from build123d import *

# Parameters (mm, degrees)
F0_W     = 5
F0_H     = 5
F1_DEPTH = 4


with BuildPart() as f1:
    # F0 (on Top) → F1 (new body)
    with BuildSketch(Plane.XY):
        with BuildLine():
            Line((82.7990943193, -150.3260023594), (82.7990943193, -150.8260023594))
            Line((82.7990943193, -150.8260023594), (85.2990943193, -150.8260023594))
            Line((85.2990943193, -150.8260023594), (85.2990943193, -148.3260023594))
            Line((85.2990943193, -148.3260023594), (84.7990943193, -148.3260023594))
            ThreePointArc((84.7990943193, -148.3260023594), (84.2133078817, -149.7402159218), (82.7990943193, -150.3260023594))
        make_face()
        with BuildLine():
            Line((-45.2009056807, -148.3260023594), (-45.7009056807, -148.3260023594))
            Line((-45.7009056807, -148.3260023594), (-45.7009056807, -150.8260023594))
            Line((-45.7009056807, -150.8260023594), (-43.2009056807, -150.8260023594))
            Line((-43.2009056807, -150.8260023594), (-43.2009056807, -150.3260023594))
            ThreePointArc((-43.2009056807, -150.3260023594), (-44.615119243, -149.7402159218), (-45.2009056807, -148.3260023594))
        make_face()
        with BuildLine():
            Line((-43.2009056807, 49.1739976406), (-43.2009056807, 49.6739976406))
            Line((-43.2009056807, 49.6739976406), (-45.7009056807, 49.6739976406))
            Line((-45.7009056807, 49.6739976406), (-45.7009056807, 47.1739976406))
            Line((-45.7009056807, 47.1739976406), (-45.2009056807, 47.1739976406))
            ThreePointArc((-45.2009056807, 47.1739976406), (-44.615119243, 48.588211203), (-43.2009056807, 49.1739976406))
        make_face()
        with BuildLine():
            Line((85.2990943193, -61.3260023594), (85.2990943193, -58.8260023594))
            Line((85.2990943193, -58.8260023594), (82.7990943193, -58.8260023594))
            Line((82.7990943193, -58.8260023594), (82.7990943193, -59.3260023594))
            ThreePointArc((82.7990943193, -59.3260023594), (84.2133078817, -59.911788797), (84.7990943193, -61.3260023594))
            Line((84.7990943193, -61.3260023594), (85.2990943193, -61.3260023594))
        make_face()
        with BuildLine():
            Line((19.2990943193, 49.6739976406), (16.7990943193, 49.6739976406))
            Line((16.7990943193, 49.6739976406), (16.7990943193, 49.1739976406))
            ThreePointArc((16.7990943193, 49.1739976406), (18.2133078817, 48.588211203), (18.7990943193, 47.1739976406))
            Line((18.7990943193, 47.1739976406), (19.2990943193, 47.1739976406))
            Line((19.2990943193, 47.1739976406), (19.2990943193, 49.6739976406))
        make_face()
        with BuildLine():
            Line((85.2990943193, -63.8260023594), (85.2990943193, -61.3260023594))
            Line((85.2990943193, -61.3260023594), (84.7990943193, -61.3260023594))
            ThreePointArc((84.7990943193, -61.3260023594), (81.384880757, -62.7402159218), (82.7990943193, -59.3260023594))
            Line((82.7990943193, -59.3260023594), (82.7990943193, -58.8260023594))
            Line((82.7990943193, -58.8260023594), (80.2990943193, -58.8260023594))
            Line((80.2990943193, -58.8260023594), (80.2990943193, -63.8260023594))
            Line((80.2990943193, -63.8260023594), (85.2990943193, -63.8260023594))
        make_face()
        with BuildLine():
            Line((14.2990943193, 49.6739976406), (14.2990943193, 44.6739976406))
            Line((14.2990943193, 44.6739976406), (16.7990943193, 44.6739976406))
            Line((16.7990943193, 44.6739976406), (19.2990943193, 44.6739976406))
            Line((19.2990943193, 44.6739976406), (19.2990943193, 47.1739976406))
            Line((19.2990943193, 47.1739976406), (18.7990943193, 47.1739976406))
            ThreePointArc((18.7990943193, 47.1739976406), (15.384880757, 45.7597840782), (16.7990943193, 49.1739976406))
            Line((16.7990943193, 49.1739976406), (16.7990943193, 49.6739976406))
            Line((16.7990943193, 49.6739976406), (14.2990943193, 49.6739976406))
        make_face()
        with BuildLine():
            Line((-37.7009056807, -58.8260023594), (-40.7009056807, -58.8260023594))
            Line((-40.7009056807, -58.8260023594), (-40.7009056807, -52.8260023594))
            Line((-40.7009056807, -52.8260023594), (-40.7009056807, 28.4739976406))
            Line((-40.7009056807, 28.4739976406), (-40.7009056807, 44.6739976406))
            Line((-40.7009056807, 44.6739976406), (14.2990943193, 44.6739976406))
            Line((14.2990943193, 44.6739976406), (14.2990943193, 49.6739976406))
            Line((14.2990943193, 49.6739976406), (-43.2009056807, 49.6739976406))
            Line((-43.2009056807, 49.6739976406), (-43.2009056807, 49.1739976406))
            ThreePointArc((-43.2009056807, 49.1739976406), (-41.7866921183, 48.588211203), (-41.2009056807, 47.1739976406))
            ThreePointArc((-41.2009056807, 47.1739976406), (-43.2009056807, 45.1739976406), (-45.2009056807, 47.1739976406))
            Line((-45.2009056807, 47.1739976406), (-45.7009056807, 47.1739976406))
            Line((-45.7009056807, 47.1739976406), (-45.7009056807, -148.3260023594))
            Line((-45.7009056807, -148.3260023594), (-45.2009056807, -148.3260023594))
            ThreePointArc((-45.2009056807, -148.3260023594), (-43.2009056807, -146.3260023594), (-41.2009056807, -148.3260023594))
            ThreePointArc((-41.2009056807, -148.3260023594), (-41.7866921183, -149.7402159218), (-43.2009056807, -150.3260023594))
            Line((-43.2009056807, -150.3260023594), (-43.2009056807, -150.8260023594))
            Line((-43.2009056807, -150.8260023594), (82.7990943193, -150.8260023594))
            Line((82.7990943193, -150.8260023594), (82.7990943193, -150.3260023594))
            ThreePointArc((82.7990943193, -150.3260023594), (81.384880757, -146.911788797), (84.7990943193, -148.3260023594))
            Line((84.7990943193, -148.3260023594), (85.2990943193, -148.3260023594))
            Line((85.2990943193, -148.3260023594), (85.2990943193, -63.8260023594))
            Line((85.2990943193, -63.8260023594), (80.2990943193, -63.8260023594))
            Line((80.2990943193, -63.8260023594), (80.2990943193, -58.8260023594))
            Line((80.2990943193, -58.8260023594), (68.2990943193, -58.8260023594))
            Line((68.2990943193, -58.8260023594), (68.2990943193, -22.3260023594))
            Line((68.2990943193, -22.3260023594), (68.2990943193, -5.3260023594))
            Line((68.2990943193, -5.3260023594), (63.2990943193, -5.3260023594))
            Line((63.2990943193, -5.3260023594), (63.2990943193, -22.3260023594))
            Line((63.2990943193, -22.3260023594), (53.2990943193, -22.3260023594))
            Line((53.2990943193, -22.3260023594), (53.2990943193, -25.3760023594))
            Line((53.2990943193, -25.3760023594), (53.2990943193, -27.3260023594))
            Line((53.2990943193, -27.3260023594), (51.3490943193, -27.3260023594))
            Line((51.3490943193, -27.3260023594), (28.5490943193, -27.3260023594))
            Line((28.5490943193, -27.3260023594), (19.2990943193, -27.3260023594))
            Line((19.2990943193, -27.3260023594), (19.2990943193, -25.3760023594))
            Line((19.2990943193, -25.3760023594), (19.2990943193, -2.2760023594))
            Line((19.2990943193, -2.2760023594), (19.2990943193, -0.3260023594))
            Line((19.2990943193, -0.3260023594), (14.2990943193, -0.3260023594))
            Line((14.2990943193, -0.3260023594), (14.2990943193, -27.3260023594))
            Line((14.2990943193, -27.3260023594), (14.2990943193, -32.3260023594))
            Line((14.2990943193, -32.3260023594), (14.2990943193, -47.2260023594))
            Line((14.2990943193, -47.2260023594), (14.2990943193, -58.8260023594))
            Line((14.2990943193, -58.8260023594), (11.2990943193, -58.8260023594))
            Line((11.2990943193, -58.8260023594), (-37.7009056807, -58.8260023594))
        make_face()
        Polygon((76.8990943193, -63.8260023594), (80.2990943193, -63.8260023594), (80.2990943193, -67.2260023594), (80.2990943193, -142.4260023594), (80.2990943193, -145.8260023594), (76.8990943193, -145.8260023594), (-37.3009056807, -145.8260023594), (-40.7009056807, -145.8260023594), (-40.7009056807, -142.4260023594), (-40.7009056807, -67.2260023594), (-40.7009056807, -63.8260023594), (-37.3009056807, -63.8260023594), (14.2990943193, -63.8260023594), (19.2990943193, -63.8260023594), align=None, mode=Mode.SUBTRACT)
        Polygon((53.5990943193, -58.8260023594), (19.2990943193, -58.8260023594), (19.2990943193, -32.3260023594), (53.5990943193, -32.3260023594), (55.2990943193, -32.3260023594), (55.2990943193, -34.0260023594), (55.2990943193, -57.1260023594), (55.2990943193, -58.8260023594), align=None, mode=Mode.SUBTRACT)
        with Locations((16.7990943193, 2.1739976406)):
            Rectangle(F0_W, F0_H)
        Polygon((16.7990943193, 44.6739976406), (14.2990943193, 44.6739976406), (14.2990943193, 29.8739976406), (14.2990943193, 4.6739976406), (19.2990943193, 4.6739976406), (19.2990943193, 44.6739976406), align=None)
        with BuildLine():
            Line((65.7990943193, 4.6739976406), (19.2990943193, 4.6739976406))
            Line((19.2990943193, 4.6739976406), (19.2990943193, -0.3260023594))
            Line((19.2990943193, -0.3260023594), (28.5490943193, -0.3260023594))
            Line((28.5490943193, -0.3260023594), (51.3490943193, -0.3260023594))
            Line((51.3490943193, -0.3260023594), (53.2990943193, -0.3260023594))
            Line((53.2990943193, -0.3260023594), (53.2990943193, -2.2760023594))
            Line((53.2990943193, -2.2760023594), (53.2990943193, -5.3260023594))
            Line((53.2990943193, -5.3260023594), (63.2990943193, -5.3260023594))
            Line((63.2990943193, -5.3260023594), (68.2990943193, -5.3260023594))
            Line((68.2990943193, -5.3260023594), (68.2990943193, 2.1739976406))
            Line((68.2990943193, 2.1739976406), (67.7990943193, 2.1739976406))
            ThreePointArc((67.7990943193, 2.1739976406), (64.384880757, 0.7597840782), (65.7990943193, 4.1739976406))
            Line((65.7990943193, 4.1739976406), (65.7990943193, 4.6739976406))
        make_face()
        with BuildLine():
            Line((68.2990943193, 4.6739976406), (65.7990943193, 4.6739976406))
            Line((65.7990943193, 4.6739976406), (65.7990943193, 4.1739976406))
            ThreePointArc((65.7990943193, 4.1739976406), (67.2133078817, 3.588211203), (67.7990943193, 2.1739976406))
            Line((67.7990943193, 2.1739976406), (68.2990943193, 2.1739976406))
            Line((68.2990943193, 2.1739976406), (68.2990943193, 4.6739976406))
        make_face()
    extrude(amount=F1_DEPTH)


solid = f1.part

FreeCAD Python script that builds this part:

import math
import FreeCAD as App
import Part
import Sketcher
from FreeCAD import Vector

doc = App.newDocument("Part")
body = doc.addObject("PartDesign::Body", "Body")

# Sketch on XY plane
sketch1 = body.newObject("Sketcher::SketchObject", "Sketch")
sketch1.AttachmentSupport = (doc.getObject("XY_Plane"), [""])
sketch1.MapMode = "FlatFace"
sketch1.addGeometry([
    Part.LineSegment(Vector(85.3, -150.8, 0), Vector(85.3, -58.8, 0)),  # 0
    Part.LineSegment(Vector(85.3, -58.8, 0), Vector(68.3, -58.8, 0)),  # 1
    Part.LineSegment(Vector(68.3, -58.8, 0), Vector(68.3, 4.7, 0)),  # 2
    Part.LineSegment(Vector(68.3, 4.7, 0), Vector(19.3, 4.7, 0)),  # 3
    Part.LineSegment(Vector(19.3, 4.7, 0), Vector(19.3, 49.7, 0)),  # 4
    Part.LineSegment(Vector(19.3, 49.7, 0), Vector(-45.7, 49.7, 0)),  # 5
    Part.LineSegment(Vector(-45.7, 49.7, 0), Vector(-45.7, -150.8, 0)),  # 6
    Part.LineSegment(Vector(-45.7, -150.8, 0), Vector(85.3, -150.8, 0)),  # 7
    Part.ArcOfCircle(Part.Circle(Vector(65.8, 2.2, 0), Vector(0, 0, 1), 2), math.radians(90), math.radians(360)),  # 8
    Part.ArcOfCircle(Part.Circle(Vector(65.8, 2.2, 0), Vector(0, 0, 1), 2), math.radians(0), math.radians(90)),  # 9
    Part.LineSegment(Vector(63.3, -5.3, 0), Vector(63.3, -22.3, 0)),  # 10
    Part.LineSegment(Vector(63.3, -22.3, 0), Vector(53.3, -22.3, 0)),  # 11
    Part.LineSegment(Vector(53.3, -22.3, 0), Vector(53.3, -27.3, 0)),  # 12
    Part.LineSegment(Vector(53.3, -27.3, 0), Vector(19.3, -27.3, 0)),  # 13
    Part.LineSegment(Vector(19.3, -27.3, 0), Vector(19.3, -0.3, 0)),  # 14
    Part.LineSegment(Vector(19.3, -0.3, 0), Vector(53.3, -0.3, 0)),  # 15
    Part.LineSegment(Vector(53.3, -0.3, 0), Vector(53.3, -5.3, 0)),  # 16
    Part.LineSegment(Vector(53.3, -5.3, 0), Vector(63.3, -5.3, 0)),  # 17
    Part.LineSegment(Vector(14.3, -58.8, 0), Vector(-40.7, -58.8, 0)),  # 18
    Part.LineSegment(Vector(-40.7, -58.8, 0), Vector(-40.7, 44.7, 0)),  # 19
    Part.LineSegment(Vector(-40.7, 44.7, 0), Vector(14.3, 44.7, 0)),  # 20
    Part.LineSegment(Vector(14.3, 44.7, 0), Vector(14.3, -58.8, 0)),  # 21
    Part.ArcOfCircle(Part.Circle(Vector(-43.2, -148.3, 0), Vector(0, 0, 1), 2), math.radians(0), math.radians(180)),  # 22
    Part.ArcOfCircle(Part.Circle(Vector(-43.2, -148.3, 0), Vector(0, 0, 1), 2), math.radians(-90), math.radians(0)),  # 23
    Part.ArcOfCircle(Part.Circle(Vector(-43.2, -148.3, 0), Vector(0, 0, 1), 2), math.radians(180), math.radians(270)),  # 24
    Part.LineSegment(Vector(-40.7, -63.8, 0), Vector(80.3, -63.8, 0)),  # 25
    Part.LineSegment(Vector(80.3, -63.8, 0), Vector(80.3, -145.8, 0)),  # 26
    Part.LineSegment(Vector(80.3, -145.8, 0), Vector(-40.7, -145.8, 0)),  # 27
    Part.LineSegment(Vector(-40.7, -145.8, 0), Vector(-40.7, -63.8, 0)),  # 28
    Part.ArcOfCircle(Part.Circle(Vector(82.8, -148.3, 0), Vector(0, 0, 1), 2), math.radians(-90), math.radians(0)),  # 29
    Part.ArcOfCircle(Part.Circle(Vector(82.8, -148.3, 0), Vector(0, 0, 1), 2), math.radians(0), math.radians(270)),  # 30
    Part.ArcOfCircle(Part.Circle(Vector(82.8, -61.3, 0), Vector(0, 0, 1), 2), math.radians(0), math.radians(90)),  # 31
    Part.ArcOfCircle(Part.Circle(Vector(82.8, -61.3, 0), Vector(0, 0, 1), 2), math.radians(90), math.radians(360)),  # 32
    Part.ArcOfCircle(Part.Circle(Vector(-43.2, 47.2, 0), Vector(0, 0, 1), 2), math.radians(0), math.radians(90)),  # 33
    Part.ArcOfCircle(Part.Circle(Vector(-43.2, 47.2, 0), Vector(0, 0, 1), 2), math.radians(180), math.radians(360)),  # 34
    Part.ArcOfCircle(Part.Circle(Vector(-43.2, 47.2, 0), Vector(0, 0, 1), 2), math.radians(90), math.radians(180)),  # 35
    Part.ArcOfCircle(Part.Circle(Vector(16.8, 47.2, 0), Vector(0, 0, 1), 2), math.radians(90), math.radians(360)),  # 36
    Part.ArcOfCircle(Part.Circle(Vector(16.8, 47.2, 0), Vector(0, 0, 1), 2), math.radians(0), math.radians(90)),  # 37
    Part.LineSegment(Vector(55.3, -58.8, 0), Vector(19.3, -58.8, 0)),  # 38
    Part.LineSegment(Vector(19.3, -58.8, 0), Vector(19.3, -32.3, 0)),  # 39
    Part.LineSegment(Vector(19.3, -32.3, 0), Vector(55.3, -32.3, 0)),  # 40
    Part.LineSegment(Vector(55.3, -32.3, 0), Vector(55.3, -58.8, 0)),  # 41
], False)
sketch1.addConstraint([
    Sketcher.Constraint("Coincident", 0, 2, 1, 1),
    Sketcher.Constraint("Coincident", 1, 2, 2, 1),
    Sketcher.Constraint("Coincident", 2, 2, 3, 1),
    Sketcher.Constraint("Coincident", 3, 2, 4, 1),
    Sketcher.Constraint("Coincident", 4, 2, 5, 1),
    Sketcher.Constraint("Coincident", 5, 2, 6, 1),
    Sketcher.Constraint("Coincident", 6, 2, 7, 1),
    Sketcher.Constraint("Coincident", 7, 2, 0, 1),
    Sketcher.Constraint("Tangent", 8, 1, 9, 2),
    Sketcher.Constraint("Coincident", 9, 1, 8, 2),
    Sketcher.Constraint("Coincident", 10, 2, 11, 1),
    Sketcher.Constraint("Coincident", 11, 2, 12, 1),
    Sketcher.Constraint("Coincident", 12, 2, 13, 1),
    Sketcher.Constraint("Coincident", 13, 2, 14, 1),
    Sketcher.Constraint("Coincident", 14, 2, 15, 1),
    Sketcher.Constraint("Coincident", 15, 2, 16, 1),
    Sketcher.Constraint("Coincident", 16, 2, 17, 1),
    Sketcher.Constraint("Coincident", 17, 2, 10, 1),
    Sketcher.Constraint("Coincident", 18, 2, 19, 1),
    Sketcher.Constraint("Coincident", 19, 2, 20, 1),
    Sketcher.Constraint("Coincident", 20, 2, 21, 1),
    Sketcher.Constraint("Coincident", 21, 2, 18, 1),
    Sketcher.Constraint("Tangent", 22, 1, 23, 2),
    Sketcher.Constraint("Tangent", 23, 1, 24, 2),
    Sketcher.Constraint("Tangent", 24, 1, 22, 2),
    Sketcher.Constraint("Coincident", 25, 2, 26, 1),
    Sketcher.Constraint("Coincident", 26, 2, 27, 1),
    Sketcher.Constraint("Coincident", 27, 2, 28, 1),
    Sketcher.Constraint("Coincident", 28, 2, 25, 1),
    Sketcher.Constraint("Tangent", 29, 1, 30, 2),
    Sketcher.Constraint("Coincident", 30, 1, 29, 2),
    Sketcher.Constraint("Tangent", 31, 1, 32, 2),
    Sketcher.Constraint("Coincident", 32, 1, 31, 2),
    Sketcher.Constraint("Tangent", 33, 1, 34, 2),
    Sketcher.Constraint("Tangent", 34, 1, 35, 2),
    Sketcher.Constraint("Tangent", 35, 1, 33, 2),
    Sketcher.Constraint("Tangent", 36, 1, 37, 2),
    Sketcher.Constraint("Coincident", 37, 1, 36, 2),
    Sketcher.Constraint("Coincident", 38, 2, 39, 1),
    Sketcher.Constraint("Coincident", 39, 2, 40, 1),
    Sketcher.Constraint("Coincident", 40, 2, 41, 1),
    Sketcher.Constraint("Coincident", 41, 2, 38, 1),
    Sketcher.Constraint("Vertical", 0),
    Sketcher.Constraint("Horizontal", 1),
    Sketcher.Constraint("Vertical", 2),
    Sketcher.Constraint("Horizontal", 3),
    Sketcher.Constraint("Vertical", 4),
    Sketcher.Constraint("Horizontal", 5),
    Sketcher.Constraint("Vertical", 6),
    Sketcher.Constraint("Horizontal", 7),
    Sketcher.Constraint("Vertical", 10),
    Sketcher.Constraint("Horizontal", 11),
    Sketcher.Constraint("Vertical", 12),
    Sketcher.Constraint("Horizontal", 13),
    Sketcher.Constraint("Vertical", 14),
    Sketcher.Constraint("Horizontal", 15),
    Sketcher.Constraint("Vertical", 16),
    Sketcher.Constraint("Horizontal", 17),
    Sketcher.Constraint("Horizontal", 18),
    Sketcher.Constraint("Vertical", 19),
    Sketcher.Constraint("Horizontal", 20),
    Sketcher.Constraint("Vertical", 21),
    Sketcher.Constraint("Horizontal", 25),
    Sketcher.Constraint("Vertical", 26),
    Sketcher.Constraint("Horizontal", 27),
    Sketcher.Constraint("Vertical", 28),
    Sketcher.Constraint("Horizontal", 38),
    Sketcher.Constraint("Vertical", 39),
    Sketcher.Constraint("Horizontal", 40),
    Sketcher.Constraint("Vertical", 41),
    Sketcher.Constraint("Equal", 9, 22),
    Sketcher.Constraint("Equal", 24, 29),
    Sketcher.Constraint("Equal", 30, 31),
    Sketcher.Constraint("Equal", 32, 33),
    Sketcher.Constraint("Equal", 35, 36),
    Sketcher.Constraint("Horizontal", 24, 3, 29, 3),
    Sketcher.Constraint("Horizontal", 35, 3, 36, 3),
    Sketcher.Constraint("Horizontal", 8, 3, 9, 1),
    Sketcher.Constraint("Horizontal", 1, 2, 18, 2),
    Sketcher.Constraint("Horizontal", 30, 3, 22, 1),
    Sketcher.Constraint("Horizontal", 22, 1, 24, 1),
    Sketcher.Constraint("Horizontal", 24, 1, 30, 1),
    Sketcher.Constraint("Horizontal", 32, 3, 31, 1),
    Sketcher.Constraint("Horizontal", 37, 3, 33, 1),
    Sketcher.Constraint("Horizontal", 33, 1, 34, 1),
    Sketcher.Constraint("Horizontal", 34, 1, 37, 1),
    Sketcher.Constraint("Horizontal", 21, 2, 38, 2),
    Sketcher.Constraint("Vertical", 30, 3, 31, 3),
    Sketcher.Constraint("Vertical", 24, 3, 33, 3),
    Sketcher.Constraint("Vertical", 9, 3, 8, 1),
    Sketcher.Constraint("Vertical", 4, 2, 13, 2),
    Sketcher.Constraint("Vertical", 12, 2, 15, 2),
    Sketcher.Constraint("Vertical", 35, 3, 23, 1),
    Sketcher.Constraint("Vertical", 19, 2, 27, 2),
    Sketcher.Constraint("Vertical", 32, 3, 29, 1),
    Sketcher.Constraint("Vertical", 29, 1, 32, 1),
    Sketcher.Constraint("Vertical", 23, 1, 35, 1),
    Sketcher.Constraint("Vertical", 37, 3, 36, 1),
    Sketcher.Constraint("Vertical", 14, 2, 38, 2),
    Sketcher.Constraint("Equal", 1, 10),
    Sketcher.Constraint("Equal", 12, 16),
    Sketcher.Constraint("Radius", 8, 2.0),
    Sketcher.Constraint("DistanceX", 1, 2, 1, 1, 17.0),
    Sketcher.Constraint("DistanceX", 3, 2, 3, 1, 49.0),
    Sketcher.Constraint("DistanceX", 5, 2, 5, 1, 65.0),
    Sketcher.Constraint("DistanceX", 11, 2, 11, 1, 10.0),
    Sketcher.Constraint("DistanceX", 13, 2, 13, 1, 34.0),
    Sketcher.Constraint("DistanceX", 18, 2, 18, 1, 55.0),
    Sketcher.Constraint("DistanceX", 25, 1, 25, 2, 121.0),
    Sketcher.Constraint("DistanceX", 38, 2, 38, 1, 36.0),
    Sketcher.Constraint("DistanceY", 0, 1, 0, 2, 92.0),
    Sketcher.Constraint("DistanceY", 4, 1, 4, 2, 45.0),
    Sketcher.Constraint("DistanceY", 12, 2, 12, 1, 5.0),
    Sketcher.Constraint("DistanceY", 26, 2, 26, 1, 82.0),
    Sketcher.Constraint("DistanceY", 2, 1, 2, 2, 63.5),
    Sketcher.Constraint("DistanceY", 19, 1, 19, 2, 103.5),
    Sketcher.Constraint("DistanceY", 39, 1, 39, 2, 26.5),
    Sketcher.Constraint("DistanceX", 22, 3, 8, 3, 109.0),
    Sketcher.Constraint("DistanceX", 22, 3, 29, 3, 126.0),
    Sketcher.Constraint("DistanceY", 29, 3, 31, 3, 87.0),
    Sketcher.Constraint("DistanceY", 8, 3, 33, 3, 45.0),
    Sketcher.Constraint("DistanceX", 33, 3, 36, 3, 60.0),
    Sketcher.Constraint("DistanceY", 0, 2, 8, 3, 61.0),
    Sketcher.Constraint("DistanceY", 10, 2, 2, 2, 27.0),
    Sketcher.Constraint("DistanceX", 18, 2, 13, 2, 60.0),
    Sketcher.Constraint("DistanceY", 25, 2, 0, 2, 5.0),
    Sketcher.Constraint("DistanceY", 22, 3, 8, 3, 150.5),
    Sketcher.Constraint("DistanceX", 31, 3, 0, 2, 2.5),
    Sketcher.Constraint("DistanceX", -1, 1, 8, 3, 65.799094),
    Sketcher.Constraint("DistanceY", -1, 1, 8, 3, 2.173998),
])
pad1 = body.newObject("PartDesign::Pad", "Pad")
pad1.Profile = sketch1
pad1.Length = 4

doc.recompute()
